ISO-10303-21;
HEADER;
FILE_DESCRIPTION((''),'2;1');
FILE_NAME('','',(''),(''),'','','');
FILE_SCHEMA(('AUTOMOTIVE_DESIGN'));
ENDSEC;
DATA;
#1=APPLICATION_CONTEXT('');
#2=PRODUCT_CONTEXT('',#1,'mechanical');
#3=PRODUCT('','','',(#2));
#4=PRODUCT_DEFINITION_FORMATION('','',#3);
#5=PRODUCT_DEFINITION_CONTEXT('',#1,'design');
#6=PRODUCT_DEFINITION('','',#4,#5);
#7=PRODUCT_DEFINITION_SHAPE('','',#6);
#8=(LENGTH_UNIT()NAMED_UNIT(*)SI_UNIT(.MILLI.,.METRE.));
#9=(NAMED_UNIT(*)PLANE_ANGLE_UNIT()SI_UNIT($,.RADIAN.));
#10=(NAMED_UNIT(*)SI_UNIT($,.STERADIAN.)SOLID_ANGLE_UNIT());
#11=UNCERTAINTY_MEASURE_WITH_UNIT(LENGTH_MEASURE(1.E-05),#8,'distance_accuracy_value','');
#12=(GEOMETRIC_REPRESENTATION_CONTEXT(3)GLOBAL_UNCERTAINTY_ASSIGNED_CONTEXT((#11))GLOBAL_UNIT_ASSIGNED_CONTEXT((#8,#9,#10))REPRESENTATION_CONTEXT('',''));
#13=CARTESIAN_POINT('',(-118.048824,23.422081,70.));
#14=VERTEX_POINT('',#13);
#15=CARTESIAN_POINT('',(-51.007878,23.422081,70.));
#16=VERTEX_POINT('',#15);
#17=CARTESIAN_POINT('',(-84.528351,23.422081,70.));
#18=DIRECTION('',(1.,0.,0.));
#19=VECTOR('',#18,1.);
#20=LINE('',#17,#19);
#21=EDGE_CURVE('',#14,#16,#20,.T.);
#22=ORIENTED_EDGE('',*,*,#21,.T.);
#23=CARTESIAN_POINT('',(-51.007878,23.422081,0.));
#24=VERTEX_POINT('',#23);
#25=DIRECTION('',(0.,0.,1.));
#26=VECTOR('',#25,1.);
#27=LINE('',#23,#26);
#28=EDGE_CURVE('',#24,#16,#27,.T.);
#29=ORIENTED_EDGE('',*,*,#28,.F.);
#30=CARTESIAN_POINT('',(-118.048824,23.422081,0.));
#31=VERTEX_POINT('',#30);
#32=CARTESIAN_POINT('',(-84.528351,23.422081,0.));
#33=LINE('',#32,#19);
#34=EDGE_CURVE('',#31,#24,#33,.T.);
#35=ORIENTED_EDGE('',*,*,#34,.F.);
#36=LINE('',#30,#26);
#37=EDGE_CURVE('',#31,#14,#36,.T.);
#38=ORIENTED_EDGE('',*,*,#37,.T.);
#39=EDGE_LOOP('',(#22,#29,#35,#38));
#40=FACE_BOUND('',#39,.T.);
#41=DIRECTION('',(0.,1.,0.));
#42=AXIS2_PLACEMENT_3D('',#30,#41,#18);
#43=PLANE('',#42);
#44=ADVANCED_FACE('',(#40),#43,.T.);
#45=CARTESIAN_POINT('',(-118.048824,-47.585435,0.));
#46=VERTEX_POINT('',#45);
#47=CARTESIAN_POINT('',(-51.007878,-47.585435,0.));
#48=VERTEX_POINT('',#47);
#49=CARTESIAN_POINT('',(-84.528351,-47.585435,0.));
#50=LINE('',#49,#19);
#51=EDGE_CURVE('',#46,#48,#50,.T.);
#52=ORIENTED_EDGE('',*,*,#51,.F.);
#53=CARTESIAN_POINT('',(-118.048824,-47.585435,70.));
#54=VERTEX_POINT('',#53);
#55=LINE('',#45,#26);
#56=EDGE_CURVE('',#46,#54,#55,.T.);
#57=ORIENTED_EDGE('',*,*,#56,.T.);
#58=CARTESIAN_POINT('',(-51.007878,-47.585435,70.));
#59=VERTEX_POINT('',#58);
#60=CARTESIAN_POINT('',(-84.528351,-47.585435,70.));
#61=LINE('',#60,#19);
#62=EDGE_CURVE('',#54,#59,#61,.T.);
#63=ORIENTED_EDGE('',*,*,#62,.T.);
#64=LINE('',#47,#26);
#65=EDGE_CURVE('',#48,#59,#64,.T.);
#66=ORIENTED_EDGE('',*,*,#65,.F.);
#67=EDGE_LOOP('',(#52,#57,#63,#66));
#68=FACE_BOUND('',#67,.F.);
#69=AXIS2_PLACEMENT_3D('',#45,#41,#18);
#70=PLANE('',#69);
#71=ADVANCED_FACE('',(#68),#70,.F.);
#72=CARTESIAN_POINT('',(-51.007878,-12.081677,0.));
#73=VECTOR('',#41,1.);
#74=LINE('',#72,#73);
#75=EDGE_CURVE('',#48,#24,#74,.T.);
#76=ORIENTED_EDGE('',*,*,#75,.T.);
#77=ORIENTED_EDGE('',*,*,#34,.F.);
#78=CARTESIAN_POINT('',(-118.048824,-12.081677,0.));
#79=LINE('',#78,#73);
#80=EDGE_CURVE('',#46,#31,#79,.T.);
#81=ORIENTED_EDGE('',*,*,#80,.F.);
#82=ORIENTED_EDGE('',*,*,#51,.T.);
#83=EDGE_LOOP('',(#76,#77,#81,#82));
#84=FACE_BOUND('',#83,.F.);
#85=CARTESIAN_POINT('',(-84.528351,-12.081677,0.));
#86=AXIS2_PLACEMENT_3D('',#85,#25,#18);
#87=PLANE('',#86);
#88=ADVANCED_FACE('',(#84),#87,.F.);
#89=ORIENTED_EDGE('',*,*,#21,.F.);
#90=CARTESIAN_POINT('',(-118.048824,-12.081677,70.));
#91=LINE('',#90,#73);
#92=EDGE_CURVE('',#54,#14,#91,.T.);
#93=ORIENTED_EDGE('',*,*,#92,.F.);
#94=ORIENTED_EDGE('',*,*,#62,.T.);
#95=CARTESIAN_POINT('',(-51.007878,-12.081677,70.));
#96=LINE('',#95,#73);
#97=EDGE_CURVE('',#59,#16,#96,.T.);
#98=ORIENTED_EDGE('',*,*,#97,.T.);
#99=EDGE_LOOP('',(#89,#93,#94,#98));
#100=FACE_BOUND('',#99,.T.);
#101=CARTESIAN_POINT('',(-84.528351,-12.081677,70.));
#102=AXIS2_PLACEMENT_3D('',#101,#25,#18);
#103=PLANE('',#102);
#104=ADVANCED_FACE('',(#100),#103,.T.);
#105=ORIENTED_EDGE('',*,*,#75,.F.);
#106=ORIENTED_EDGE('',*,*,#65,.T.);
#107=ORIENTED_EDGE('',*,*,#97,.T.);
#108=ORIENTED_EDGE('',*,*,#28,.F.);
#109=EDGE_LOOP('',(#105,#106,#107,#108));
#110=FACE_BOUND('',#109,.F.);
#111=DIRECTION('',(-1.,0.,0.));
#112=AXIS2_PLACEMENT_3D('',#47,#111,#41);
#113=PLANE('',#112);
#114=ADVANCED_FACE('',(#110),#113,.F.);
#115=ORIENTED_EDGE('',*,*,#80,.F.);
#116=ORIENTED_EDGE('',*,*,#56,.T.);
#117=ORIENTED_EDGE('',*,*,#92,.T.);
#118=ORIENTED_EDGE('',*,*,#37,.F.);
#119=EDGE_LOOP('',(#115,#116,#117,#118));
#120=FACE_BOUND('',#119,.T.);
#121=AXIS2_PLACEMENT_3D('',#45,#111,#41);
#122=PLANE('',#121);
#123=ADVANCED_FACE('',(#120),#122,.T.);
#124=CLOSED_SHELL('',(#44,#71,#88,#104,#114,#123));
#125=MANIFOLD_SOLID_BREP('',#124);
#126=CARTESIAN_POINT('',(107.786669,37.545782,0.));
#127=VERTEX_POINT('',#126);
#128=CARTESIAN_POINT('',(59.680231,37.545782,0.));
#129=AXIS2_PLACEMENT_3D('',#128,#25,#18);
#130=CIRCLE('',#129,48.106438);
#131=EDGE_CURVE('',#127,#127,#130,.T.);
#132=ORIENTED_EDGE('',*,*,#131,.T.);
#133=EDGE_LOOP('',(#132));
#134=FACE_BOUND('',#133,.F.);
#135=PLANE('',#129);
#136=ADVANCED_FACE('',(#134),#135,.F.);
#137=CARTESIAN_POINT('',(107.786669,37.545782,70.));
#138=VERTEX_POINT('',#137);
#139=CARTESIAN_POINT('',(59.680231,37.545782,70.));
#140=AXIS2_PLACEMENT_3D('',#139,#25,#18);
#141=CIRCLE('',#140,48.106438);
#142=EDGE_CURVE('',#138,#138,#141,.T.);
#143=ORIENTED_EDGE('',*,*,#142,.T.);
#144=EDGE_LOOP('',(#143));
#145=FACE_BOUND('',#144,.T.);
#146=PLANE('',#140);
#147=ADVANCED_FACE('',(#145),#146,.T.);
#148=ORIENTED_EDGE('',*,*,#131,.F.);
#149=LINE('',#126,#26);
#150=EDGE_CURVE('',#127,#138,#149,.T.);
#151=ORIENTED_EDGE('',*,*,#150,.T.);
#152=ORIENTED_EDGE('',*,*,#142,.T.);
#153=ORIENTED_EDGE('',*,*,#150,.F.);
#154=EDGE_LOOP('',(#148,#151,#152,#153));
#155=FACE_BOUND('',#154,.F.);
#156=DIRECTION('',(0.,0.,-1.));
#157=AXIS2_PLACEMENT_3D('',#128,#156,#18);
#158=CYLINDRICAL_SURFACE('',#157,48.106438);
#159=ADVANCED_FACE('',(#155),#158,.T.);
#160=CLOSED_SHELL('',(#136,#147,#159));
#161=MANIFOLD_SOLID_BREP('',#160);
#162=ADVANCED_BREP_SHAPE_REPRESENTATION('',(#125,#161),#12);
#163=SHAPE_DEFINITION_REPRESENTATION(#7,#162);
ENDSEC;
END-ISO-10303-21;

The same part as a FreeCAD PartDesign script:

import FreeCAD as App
import Part
import Sketcher
from FreeCAD import Vector
Q = App.Units.Quantity

doc = App.newDocument("Part")
body = doc.addObject("PartDesign::Body", "Body")
body.AllowCompound = True

sketch1 = doc.addObject("Sketcher::SketchObject", "Sketch")
body.addObject(sketch1)
sketch1.AttachmentSupport = (doc.XY_Plane, [""])
sketch1.MapMode = "FlatFace"
sketch1.addGeometry([
    Part.LineSegment(Vector(-118.048824, 23.422081, 0), Vector(-118.048824, -47.585435, 0)),
    Part.LineSegment(Vector(-118.048824, -47.585435, 0), Vector(-51.007878, -47.585435, 0)),
    Part.LineSegment(Vector(-51.007878, -47.585435, 0), Vector(-51.007878, 23.422081, 0)),
    Part.LineSegment(Vector(-51.007878, 23.422081, 0), Vector(-118.048824, 23.422081, 0)),
    Part.Circle(Vector(59.680231, 37.545782, 0), Vector(0, 0, 1), 48.106438),
], False)
sketch1.addConstraint([
    Sketcher.Constraint("Coincident", 0, 2, 1, 1),
    Sketcher.Constraint("Coincident", 1, 2, 2, 1),
    Sketcher.Constraint("Coincident", 2, 2, 3, 1),
    Sketcher.Constraint("Coincident", 3, 2, 0, 1),
    Sketcher.Constraint("Vertical", 0),
    Sketcher.Constraint("Horizontal", 1),
    Sketcher.Constraint("Vertical", 2),
    Sketcher.Constraint("Horizontal", 3),
    Sketcher.Constraint("Diameter", 4, Q("96.212876 mm")),
    Sketcher.Constraint("DistanceY", 2, 2, 4, 3, Q("14.123701 mm")),
    Sketcher.Constraint("DistanceX", 1, 1, 1, 2, Q("67.040946 mm")),
    Sketcher.Constraint("DistanceY", 0, 2, 0, 1, Q("71.007516 mm")),
    Sketcher.Constraint("DistanceX", -1, 1, 4, 3, Q("59.680231 mm")),
    Sketcher.Constraint("DistanceY", -1, 1, 2, 2, Q("23.422081 mm")),
    Sketcher.Constraint("DistanceX", 1, 2, 4, 3, Q("110.688109 mm")),
])
pad1 = doc.addObject("PartDesign::Pad", "Pad")
body.addObject(pad1)
pad1.Profile = sketch1
pad1.Length = 70

doc.recompute()
